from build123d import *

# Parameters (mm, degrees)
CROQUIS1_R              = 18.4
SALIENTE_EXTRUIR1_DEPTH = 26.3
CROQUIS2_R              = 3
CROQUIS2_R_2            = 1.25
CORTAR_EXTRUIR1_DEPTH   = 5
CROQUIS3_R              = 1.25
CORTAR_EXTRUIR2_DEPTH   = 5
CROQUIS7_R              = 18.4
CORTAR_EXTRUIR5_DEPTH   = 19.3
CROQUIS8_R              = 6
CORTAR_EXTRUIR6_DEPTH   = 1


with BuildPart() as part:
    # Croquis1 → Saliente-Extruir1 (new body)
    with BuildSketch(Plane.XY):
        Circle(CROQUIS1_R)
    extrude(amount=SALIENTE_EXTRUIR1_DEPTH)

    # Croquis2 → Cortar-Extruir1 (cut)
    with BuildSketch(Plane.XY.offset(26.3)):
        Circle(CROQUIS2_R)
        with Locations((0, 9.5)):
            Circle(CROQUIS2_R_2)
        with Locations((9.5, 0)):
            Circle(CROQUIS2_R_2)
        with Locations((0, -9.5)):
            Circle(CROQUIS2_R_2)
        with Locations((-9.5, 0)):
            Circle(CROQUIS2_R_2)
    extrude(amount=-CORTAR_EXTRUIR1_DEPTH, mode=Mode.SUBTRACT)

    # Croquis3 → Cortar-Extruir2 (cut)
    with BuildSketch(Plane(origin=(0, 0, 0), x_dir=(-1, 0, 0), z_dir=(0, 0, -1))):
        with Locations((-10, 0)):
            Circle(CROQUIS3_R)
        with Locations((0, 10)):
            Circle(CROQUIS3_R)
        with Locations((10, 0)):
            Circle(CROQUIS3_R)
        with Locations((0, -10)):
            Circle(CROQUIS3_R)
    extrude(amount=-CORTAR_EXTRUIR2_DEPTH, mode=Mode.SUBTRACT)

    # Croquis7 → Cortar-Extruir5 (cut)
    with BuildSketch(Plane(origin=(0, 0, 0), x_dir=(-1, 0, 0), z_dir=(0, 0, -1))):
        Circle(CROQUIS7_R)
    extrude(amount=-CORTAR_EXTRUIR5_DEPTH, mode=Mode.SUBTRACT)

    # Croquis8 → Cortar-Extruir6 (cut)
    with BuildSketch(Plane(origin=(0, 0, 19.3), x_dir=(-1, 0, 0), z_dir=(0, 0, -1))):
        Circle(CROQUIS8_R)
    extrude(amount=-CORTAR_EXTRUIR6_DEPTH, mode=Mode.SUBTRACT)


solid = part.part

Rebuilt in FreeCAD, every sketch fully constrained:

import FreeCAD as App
import Part
import Sketcher
Q = App.Units.Quantity

doc = App.newDocument("Part")
body = doc.addObject("PartDesign::Body", "Body")

# Sketch on XY plane
sketch1 = body.newObject("Sketcher::SketchObject", "Sketch")
sketch1.AttachmentSupport = (doc.getObject("XY_Plane"), [""])
sketch1.MapMode = "FlatFace"
sketch1.addGeometry(Part.Circle(App.Vector(0, 0, 0), App.Vector(0, 0, 1), 18), False)
sketch1.addConstraint(Sketcher.Constraint("Coincident", 0, 3, -1, 1))
sketch1.addConstraint(Sketcher.Constraint("Diameter", 0, Q("36.8 mm")))
pad1 = body.newObject("PartDesign::Pad", "Pad")
pad1.Profile = sketch1
pad1.Length = 26.3

# Sketch on XY plane
sketch2 = body.newObject("Sketcher::SketchObject", "Sketch001")
sketch2.AttachmentSupport = (doc.getObject("XY_Plane"), [""])
sketch2.MapMode = "FlatFace"
sketch2.AttachmentOffset = App.Placement(App.Vector(0, 0, 26.3), App.Rotation())
sketch2.addGeometry(Part.Circle(App.Vector(0, 0, 0), App.Vector(0, 0, 1), 3), False)
sketch2.addGeometry(Part.Circle(App.Vector(0, 9.5, 0), App.Vector(0, 0, 1), 1.2), False)
sketch2.addGeometry(Part.Circle(App.Vector(9.5, 0, 0), App.Vector(0, 0, 1), 1.2), False)
sketch2.addGeometry(Part.Circle(App.Vector(0, -9.5, 0), App.Vector(0, 0, 1), 1.2), False)
sketch2.addGeometry(Part.Circle(App.Vector(-9.5, 0, 0), App.Vector(0, 0, 1), 1.2), False)
sketch2.addConstraint(Sketcher.Constraint("Coincident", 0, 3, -1, 1))
sketch2.addConstraint(Sketcher.Constraint("Equal", 1, 2))
sketch2.addConstraint(Sketcher.Constraint("Equal", 2, 3))
sketch2.addConstraint(Sketcher.Constraint("Equal", 3, 4))
sketch2.addConstraint(Sketcher.Constraint("Symmetric", 1, 3, 3, 3, -1, 1))
sketch2.addConstraint(Sketcher.Constraint("Symmetric", 2, 3, 4, 3, -1, 1))
sketch2.addConstraint(Sketcher.Constraint("PointOnObject", 1, 3, -2))
sketch2.addConstraint(Sketcher.Constraint("PointOnObject", 2, 3, -1))
sketch2.addConstraint(Sketcher.Constraint("Diameter", 0, Q("6 mm")))
sketch2.addConstraint(Sketcher.Constraint("Diameter", 1, Q("2.5 mm")))
sketch2.addConstraint(Sketcher.Constraint("DistanceY", 3, 3, 1, 3, Q("19 mm")))
sketch2.addConstraint(Sketcher.Constraint("DistanceX", 4, 3, 2, 3, Q("19 mm")))
pocket1 = body.newObject("PartDesign::Pocket", "Pocket")
pocket1.Profile = sketch2
pocket1.Length = 5

# Sketch on XY plane
sketch3 = body.newObject("Sketcher::SketchObject", "Sketch002")
sketch3.AttachmentSupport = (doc.getObject("XY_Plane"), [""])
sketch3.MapMode = "FlatFace"
sketch3.addGeometry(Part.Circle(App.Vector(10, 0, 0), App.Vector(0, 0, 1), 1.2), False)
sketch3.addGeometry(Part.Circle(App.Vector(0, 10, 0), App.Vector(0, 0, 1), 1.2), False)
sketch3.addGeometry(Part.Circle(App.Vector(-10, 0, 0), App.Vector(0, 0, 1), 1.2), False)
sketch3.addGeometry(Part.Circle(App.Vector(0, -10, 0), App.Vector(0, 0, 1), 1.2), False)
sketch3.addConstraint(Sketcher.Constraint("Equal", 0, 1))
sketch3.addConstraint(Sketcher.Constraint("Equal", 1, 2))
sketch3.addConstraint(Sketcher.Constraint("Equal", 2, 3))
sketch3.addConstraint(Sketcher.Constraint("Symmetric", 0, 3, 2, 3, -1, 1))
sketch3.addConstraint(Sketcher.Constraint("Symmetric", 1, 3, 3, 3, -1, 1))
sketch3.addConstraint(Sketcher.Constraint("PointOnObject", 0, 3, -1))
sketch3.addConstraint(Sketcher.Constraint("PointOnObject", 1, 3, -2))
sketch3.addConstraint(Sketcher.Constraint("Diameter", 0, Q("2.5 mm")))
sketch3.addConstraint(Sketcher.Constraint("DistanceX", -1, 1, 0, 3, Q("10 mm")))
sketch3.addConstraint(Sketcher.Constraint("DistanceY", -1, 1, 1, 3, Q("10 mm")))
pocket2 = body.newObject("PartDesign::Pocket", "Pocket001")
pocket2.Profile = sketch3
pocket2.Length = 5
pocket2.Reversed = True

# Sketch on XY plane
sketch4 = body.newObject("Sketcher::SketchObject", "Sketch003")
sketch4.AttachmentSupport = (doc.getObject("XY_Plane"), [""])
sketch4.MapMode = "FlatFace"
sketch4.addGeometry(Part.Circle(App.Vector(0, 0, 0), App.Vector(0, 0, 1), 18), False)
sketch4.addConstraint(Sketcher.Constraint("Coincident", 0, 3, -1, 1))
sketch4.addConstraint(Sketcher.Constraint("Diameter", 0, Q("36.8 mm")))
pocket3 = body.newObject("PartDesign::Pocket", "Pocket002")
pocket3.Profile = sketch4
pocket3.Length = 19.3
pocket3.Reversed = True

# Sketch on XY plane
sketch5 = body.newObject("Sketcher::SketchObject", "Sketch004")
sketch5.AttachmentSupport = (doc.getObject("XY_Plane"), [""])
sketch5.MapMode = "FlatFace"
sketch5.AttachmentOffset = App.Placement(App.Vector(0, 0, 19.3), App.Rotation())
sketch5.addGeometry(Part.Circle(App.Vector(0, 0, 0), App.Vector(0, 0, 1), 6), False)
sketch5.addConstraint(Sketcher.Constraint("Coincident", 0, 3, -1, 1))
sketch5.addConstraint(Sketcher.Constraint("Diameter", 0, Q("12 mm")))
pocket4 = body.newObject("PartDesign::Pocket", "Pocket003")
pocket4.Profile = sketch5
pocket4.Length = 1
pocket4.Reversed = True

doc.recompute()
